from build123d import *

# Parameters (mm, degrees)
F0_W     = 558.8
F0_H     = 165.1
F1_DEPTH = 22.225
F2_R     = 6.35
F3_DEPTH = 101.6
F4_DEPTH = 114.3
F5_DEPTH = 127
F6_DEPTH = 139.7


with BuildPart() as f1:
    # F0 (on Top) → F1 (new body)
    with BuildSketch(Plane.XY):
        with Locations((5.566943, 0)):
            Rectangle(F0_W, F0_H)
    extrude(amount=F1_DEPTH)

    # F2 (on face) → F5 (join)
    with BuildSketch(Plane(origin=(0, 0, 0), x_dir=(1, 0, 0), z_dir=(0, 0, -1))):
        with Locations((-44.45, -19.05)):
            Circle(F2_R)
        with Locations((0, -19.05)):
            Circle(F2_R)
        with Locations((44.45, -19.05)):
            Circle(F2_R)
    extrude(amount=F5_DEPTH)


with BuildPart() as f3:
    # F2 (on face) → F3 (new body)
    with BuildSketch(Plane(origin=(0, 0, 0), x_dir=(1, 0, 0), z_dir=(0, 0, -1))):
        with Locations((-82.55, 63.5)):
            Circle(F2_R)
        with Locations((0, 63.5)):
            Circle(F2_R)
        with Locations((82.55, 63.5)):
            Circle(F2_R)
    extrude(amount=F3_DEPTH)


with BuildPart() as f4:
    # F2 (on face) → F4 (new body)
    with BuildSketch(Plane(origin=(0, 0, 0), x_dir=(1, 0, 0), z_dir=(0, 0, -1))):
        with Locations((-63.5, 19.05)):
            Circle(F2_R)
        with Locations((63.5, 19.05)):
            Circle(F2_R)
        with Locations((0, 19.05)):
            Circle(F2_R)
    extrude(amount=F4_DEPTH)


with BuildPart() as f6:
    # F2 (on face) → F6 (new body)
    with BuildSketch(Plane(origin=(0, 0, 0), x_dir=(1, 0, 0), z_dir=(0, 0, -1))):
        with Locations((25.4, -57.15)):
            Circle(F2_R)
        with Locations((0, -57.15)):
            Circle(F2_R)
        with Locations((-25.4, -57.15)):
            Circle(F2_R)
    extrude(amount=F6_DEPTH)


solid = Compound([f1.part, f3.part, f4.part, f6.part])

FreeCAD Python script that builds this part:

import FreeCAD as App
import Part
import Sketcher
from FreeCAD import Vector
Q = App.Units.Quantity

doc = App.newDocument("Part")
body = doc.addObject("PartDesign::Body", "Body")

sketch1 = body.newObject("Sketcher::SketchObject", "Sketch")
sketch1.AttachmentSupport = (doc.getObject("XY_Plane"), [""])
sketch1.MapMode = "FlatFace"
sketch1.addGeometry([
    Part.LineSegment(Vector(-274, 83, 0), Vector(-274, -83, 0)),
    Part.LineSegment(Vector(-274, -83, 0), Vector(285, -83, 0)),
    Part.LineSegment(Vector(285, -83, 0), Vector(285, 83, 0)),
    Part.LineSegment(Vector(285, 83, 0), Vector(-274, 83, 0)),
], False)
sketch1.addConstraint([
    Sketcher.Constraint("Coincident", 0, 2, 1, 1),
    Sketcher.Constraint("Coincident", 1, 2, 2, 1),
    Sketcher.Constraint("Coincident", 2, 2, 3, 1),
    Sketcher.Constraint("Coincident", 3, 2, 0, 1),
    Sketcher.Constraint("Vertical", 0),
    Sketcher.Constraint("Horizontal", 1),
    Sketcher.Constraint("Vertical", 2),
    Sketcher.Constraint("Horizontal", 3),
    Sketcher.Constraint("DistanceX", 1, 1, 1, 2, Q("22 in")),
    Sketcher.Constraint("DistanceY", 0, 2, 0, 1, Q("6.5 in")),
    Sketcher.Constraint("DistanceY", 0, 2, -1, 1, Q("3.25 in")),
    Sketcher.Constraint("DistanceX", 0, 2, -1, 1, Q("273.833057 mm")),
])
pad1 = body.newObject("PartDesign::Pad", "Pad")
pad1.Profile = sketch1
pad1.Length = Q("0.875 in")

sketch2 = body.newObject("Sketcher::SketchObject", "Sketch001")
sketch2.AttachmentSupport = (doc.getObject("XY_Plane"), [""])
sketch2.MapMode = "FlatFace"
sketch2.addGeometry([
    Part.Circle(Vector(-44, 19, 0), Vector(0, 0, 1), 6),
    Part.Circle(Vector(0, 19, 0), Vector(0, 0, 1), 6),
    Part.Circle(Vector(44, 19, 0), Vector(0, 0, 1), 6),
], False)
sketch2.addConstraint([
    Sketcher.Constraint("Equal", 0, 1),
    Sketcher.Constraint("Equal", 1, 2),
    Sketcher.Constraint("Symmetric", 0, 3, 2, 3, -2),
    Sketcher.Constraint("PointOnObject", 1, 3, -2),
    Sketcher.Constraint("Horizontal", 0, 3, 1, 3),
    Sketcher.Constraint("Diameter", 0, Q("0.5 in")),
    Sketcher.Constraint("DistanceX", 0, 3, 2, 3, Q("3.5 in")),
    Sketcher.Constraint("DistanceY", -1, 1, 0, 3, Q("0.75 in")),
])
pad2 = body.newObject("PartDesign::Pad", "Pad001")
pad2.Profile = sketch2
pad2.Length = Q("5 in")
pad2.Reversed = True
body2 = doc.addObject("PartDesign::Body", "Body001")
body2.AllowCompound = True

sketch3 = body2.newObject("Sketcher::SketchObject", "Sketch002")
sketch3.AttachmentSupport = (doc.getObject("XY_Plane001"), [""])
sketch3.MapMode = "FlatFace"
sketch3.addGeometry([
    Part.Circle(Vector(-83, -64, 0), Vector(0, 0, 1), 6),
    Part.Circle(Vector(0, -64, 0), Vector(0, 0, 1), 6),
    Part.Circle(Vector(83, -64, 0), Vector(0, 0, 1), 6),
], False)
sketch3.addConstraint([
    Sketcher.Constraint("Equal", 0, 1),
    Sketcher.Constraint("Equal", 1, 2),
    Sketcher.Constraint("Symmetric", 0, 3, 2, 3, -2),
    Sketcher.Constraint("PointOnObject", 1, 3, -2),
    Sketcher.Constraint("Horizontal", 0, 3, 1, 3),
    Sketcher.Constraint("Diameter", 0, Q("0.5 in")),
    Sketcher.Constraint("DistanceY", 0, 3, -1, 1, Q("2.5 in")),
    Sketcher.Constraint("DistanceX", 0, 3, 2, 3, Q("6.5 in")),
])
pad3 = body2.newObject("PartDesign::Pad", "Pad002")
pad3.Profile = sketch3
pad3.Length = Q("4 in")
pad3.Reversed = True
body3 = doc.addObject("PartDesign::Body", "Body002")
body3.AllowCompound = True

sketch4 = body3.newObject("Sketcher::SketchObject", "Sketch003")
sketch4.AttachmentSupport = (doc.getObject("XY_Plane002"), [""])
sketch4.MapMode = "FlatFace"
sketch4.addGeometry([
    Part.Circle(Vector(-64, -19, 0), Vector(0, 0, 1), 6),
    Part.Circle(Vector(64, -19, 0), Vector(0, 0, 1), 6),
    Part.Circle(Vector(0, -19, 0), Vector(0, 0, 1), 6),
], False)
sketch4.addConstraint([
    Sketcher.Constraint("Equal", 0, 1),
    Sketcher.Constraint("Equal", 1, 2),
    Sketcher.Constraint("Symmetric", 0, 3, 1, 3, -2),
    Sketcher.Constraint("PointOnObject", 2, 3, -2),
    Sketcher.Constraint("Horizontal", 1, 3, 2, 3),
    Sketcher.Constraint("Diameter", 0, Q("0.5 in")),
    Sketcher.Constraint("DistanceX", 0, 3, 1, 3, Q("5 in")),
    Sketcher.Constraint("DistanceY", 0, 3, -1, 1, Q("0.75 in")),
])
pad4 = body3.newObject("PartDesign::Pad", "Pad003")
pad4.Profile = sketch4
pad4.Length = Q("4.5 in")
pad4.Reversed = True
body4 = doc.addObject("PartDesign::Body", "Body003")
body4.AllowCompound = True

sketch5 = body4.newObject("Sketcher::SketchObject", "Sketch004")
sketch5.AttachmentSupport = (doc.getObject("XY_Plane003"), [""])
sketch5.MapMode = "FlatFace"
sketch5.addGeometry([
    Part.Circle(Vector(25, 57, 0), Vector(0, 0, 1), 6),
    Part.Circle(Vector(0, 57, 0), Vector(0, 0, 1), 6),
    Part.Circle(Vector(-25, 57, 0), Vector(0, 0, 1), 6),
], False)
sketch5.addConstraint([
    Sketcher.Constraint("Equal", 0, 1),
    Sketcher.Constraint("Equal", 1, 2),
    Sketcher.Constraint("Symmetric", 0, 3, 2, 3, -2),
    Sketcher.Constraint("PointOnObject", 1, 3, -2),
    Sketcher.Constraint("Horizontal", 0, 3, 1, 3),
    Sketcher.Constraint("Diameter", 0, Q("0.5 in")),
    Sketcher.Constraint("DistanceX", -1, 1, 0, 3, Q("1 in")),
    Sketcher.Constraint("DistanceY", -1, 1, 0, 3, Q("2.25 in")),
])
pad5 = body4.newObject("PartDesign::Pad", "Pad004")
pad5.Profile = sketch5
pad5.Length = Q("5.5 in")
pad5.Reversed = True

doc.recompute()
